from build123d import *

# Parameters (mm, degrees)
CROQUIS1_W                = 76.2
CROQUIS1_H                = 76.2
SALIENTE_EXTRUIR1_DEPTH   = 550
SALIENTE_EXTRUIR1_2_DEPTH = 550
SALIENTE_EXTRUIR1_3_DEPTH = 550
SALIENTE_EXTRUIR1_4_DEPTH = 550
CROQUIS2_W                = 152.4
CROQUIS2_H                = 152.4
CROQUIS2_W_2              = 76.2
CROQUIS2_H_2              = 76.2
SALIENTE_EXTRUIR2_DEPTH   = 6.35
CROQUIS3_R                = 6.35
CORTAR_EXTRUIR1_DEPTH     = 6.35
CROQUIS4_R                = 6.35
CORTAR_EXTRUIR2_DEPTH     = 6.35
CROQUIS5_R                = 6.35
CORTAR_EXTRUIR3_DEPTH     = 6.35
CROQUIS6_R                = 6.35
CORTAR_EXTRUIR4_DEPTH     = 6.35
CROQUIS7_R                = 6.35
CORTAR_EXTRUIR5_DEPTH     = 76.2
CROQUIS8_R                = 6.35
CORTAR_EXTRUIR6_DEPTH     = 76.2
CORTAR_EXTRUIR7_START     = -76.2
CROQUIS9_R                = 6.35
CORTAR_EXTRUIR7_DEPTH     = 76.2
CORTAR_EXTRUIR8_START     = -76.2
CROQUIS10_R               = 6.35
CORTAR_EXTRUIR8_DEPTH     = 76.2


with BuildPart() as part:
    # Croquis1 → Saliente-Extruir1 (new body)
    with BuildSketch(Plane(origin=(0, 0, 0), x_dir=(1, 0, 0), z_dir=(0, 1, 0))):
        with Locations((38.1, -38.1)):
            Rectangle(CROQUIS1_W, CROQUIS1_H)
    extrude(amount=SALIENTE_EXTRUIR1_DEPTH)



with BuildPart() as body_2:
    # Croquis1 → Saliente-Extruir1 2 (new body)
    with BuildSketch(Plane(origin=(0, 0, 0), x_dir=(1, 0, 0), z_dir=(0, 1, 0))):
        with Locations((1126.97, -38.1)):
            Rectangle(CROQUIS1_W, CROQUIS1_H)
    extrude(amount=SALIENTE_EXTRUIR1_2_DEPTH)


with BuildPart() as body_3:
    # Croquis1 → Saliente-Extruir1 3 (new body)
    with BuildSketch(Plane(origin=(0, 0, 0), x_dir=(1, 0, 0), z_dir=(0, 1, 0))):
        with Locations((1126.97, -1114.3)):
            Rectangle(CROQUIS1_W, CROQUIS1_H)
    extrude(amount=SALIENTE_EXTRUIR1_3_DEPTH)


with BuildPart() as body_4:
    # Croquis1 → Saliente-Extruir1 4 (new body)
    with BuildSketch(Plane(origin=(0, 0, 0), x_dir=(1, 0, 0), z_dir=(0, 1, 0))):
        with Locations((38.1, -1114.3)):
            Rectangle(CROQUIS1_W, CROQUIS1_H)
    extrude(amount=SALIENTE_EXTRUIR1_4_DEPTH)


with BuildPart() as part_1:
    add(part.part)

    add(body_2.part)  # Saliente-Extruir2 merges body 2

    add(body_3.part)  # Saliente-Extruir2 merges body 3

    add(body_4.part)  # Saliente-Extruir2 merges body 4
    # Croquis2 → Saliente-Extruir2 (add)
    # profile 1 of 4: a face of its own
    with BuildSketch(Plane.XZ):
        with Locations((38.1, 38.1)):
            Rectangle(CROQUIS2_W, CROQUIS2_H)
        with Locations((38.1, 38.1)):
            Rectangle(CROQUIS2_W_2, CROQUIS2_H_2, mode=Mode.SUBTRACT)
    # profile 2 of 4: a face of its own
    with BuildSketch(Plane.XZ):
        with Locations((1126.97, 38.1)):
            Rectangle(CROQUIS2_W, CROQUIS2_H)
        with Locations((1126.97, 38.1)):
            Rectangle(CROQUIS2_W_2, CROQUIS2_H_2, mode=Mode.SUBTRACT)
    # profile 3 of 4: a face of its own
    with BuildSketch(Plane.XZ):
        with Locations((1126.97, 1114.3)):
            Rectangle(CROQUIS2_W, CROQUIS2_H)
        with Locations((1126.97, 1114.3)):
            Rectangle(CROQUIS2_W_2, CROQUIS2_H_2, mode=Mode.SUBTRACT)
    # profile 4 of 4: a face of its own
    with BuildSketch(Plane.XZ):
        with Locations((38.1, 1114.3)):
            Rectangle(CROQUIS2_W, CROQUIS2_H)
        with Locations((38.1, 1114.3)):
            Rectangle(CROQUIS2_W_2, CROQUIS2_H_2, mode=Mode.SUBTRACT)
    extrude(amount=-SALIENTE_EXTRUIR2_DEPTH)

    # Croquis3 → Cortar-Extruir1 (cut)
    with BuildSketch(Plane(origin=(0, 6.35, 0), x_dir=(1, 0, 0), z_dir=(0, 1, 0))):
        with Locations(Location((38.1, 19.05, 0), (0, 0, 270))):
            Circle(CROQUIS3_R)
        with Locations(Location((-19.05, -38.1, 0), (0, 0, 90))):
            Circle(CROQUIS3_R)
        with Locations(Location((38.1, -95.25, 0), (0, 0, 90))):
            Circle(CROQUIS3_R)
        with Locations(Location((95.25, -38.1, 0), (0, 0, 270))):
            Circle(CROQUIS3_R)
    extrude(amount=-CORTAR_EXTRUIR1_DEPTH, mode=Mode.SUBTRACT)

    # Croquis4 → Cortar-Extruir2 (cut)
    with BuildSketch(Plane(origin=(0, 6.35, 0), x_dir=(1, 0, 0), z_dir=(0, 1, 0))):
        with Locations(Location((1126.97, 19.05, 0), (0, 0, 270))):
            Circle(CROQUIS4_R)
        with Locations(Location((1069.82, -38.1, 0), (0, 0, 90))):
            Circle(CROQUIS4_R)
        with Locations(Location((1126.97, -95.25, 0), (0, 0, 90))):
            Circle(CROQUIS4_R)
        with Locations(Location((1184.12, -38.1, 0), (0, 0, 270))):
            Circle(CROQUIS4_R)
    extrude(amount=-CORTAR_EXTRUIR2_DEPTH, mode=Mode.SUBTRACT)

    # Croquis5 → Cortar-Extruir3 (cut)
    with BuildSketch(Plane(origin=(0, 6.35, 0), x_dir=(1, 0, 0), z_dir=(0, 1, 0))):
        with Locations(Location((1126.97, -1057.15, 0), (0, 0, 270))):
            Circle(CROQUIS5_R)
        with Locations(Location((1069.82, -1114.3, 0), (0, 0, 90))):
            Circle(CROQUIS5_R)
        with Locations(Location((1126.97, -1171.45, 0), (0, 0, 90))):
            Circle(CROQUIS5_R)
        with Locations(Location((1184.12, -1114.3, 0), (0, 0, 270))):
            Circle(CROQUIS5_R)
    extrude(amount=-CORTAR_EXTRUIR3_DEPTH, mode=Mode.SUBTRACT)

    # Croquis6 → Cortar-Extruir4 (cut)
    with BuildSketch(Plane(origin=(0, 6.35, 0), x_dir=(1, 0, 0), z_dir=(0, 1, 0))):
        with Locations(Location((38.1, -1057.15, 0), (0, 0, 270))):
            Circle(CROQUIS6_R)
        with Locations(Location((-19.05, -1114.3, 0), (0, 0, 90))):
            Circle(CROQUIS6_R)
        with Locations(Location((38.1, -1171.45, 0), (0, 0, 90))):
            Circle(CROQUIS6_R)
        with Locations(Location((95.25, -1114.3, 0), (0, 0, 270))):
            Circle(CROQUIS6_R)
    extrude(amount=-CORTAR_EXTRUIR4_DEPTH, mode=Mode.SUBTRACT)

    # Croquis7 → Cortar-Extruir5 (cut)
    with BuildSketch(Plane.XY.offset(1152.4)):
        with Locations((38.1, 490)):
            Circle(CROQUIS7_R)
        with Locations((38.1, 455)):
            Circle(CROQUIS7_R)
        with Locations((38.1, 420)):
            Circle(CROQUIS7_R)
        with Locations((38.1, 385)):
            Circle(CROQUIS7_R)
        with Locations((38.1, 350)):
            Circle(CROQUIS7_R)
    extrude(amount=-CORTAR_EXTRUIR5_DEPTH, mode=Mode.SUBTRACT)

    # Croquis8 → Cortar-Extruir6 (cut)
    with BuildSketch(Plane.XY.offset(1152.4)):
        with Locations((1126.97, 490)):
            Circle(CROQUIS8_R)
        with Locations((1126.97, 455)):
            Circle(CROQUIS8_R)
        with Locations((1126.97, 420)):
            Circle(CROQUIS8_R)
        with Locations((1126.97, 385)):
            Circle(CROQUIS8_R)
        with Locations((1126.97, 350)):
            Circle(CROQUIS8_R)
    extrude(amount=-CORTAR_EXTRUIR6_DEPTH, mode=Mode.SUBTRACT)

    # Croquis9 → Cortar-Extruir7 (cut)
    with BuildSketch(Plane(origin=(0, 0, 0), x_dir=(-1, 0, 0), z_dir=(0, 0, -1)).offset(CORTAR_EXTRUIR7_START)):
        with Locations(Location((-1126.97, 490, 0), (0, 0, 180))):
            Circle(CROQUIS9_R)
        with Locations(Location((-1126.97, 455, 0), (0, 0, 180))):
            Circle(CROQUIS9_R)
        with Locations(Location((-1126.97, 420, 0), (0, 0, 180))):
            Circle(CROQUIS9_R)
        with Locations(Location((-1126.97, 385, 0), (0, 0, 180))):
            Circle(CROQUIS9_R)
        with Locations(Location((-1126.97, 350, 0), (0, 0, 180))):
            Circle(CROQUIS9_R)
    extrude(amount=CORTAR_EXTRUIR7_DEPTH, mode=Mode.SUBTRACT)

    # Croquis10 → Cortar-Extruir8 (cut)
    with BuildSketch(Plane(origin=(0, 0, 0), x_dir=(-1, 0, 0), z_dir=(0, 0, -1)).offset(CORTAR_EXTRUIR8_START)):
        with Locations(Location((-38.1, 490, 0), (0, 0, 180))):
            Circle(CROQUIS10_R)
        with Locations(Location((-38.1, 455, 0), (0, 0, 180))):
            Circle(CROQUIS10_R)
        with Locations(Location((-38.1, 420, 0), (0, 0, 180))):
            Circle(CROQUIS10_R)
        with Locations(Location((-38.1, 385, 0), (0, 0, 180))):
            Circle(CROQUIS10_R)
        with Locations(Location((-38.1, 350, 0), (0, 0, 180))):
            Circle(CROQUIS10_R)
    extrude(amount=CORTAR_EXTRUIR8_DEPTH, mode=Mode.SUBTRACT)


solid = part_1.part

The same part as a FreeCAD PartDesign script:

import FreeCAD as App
import Part
import Sketcher
Q = App.Units.Quantity


def add_polygon(sketch, points):
    """Adds a closed chain of lines whose ends are joined by coincident constraints."""
    first, n = sketch.GeometryCount, len(points)
    for a, b in zip(points, points[1:] + points[:1]):
        sketch.addGeometry(Part.LineSegment(App.Vector(*a, 0), App.Vector(*b, 0)), False)
    for i in range(n):
        sketch.addConstraint(Sketcher.Constraint("Coincident", first + i, 2, first + (i + 1) % n, 1))

doc = App.newDocument("Part")
body = doc.addObject("PartDesign::Body", "Body")

# Sketch on XZ plane
sketch1 = body.newObject("Sketcher::SketchObject", "Sketch")
sketch1.AttachmentSupport = (doc.getObject("XZ_Plane"), [""])
sketch1.MapMode = "FlatFace"
add_polygon(sketch1, [(0, 0), (0, 76), (76, 76), (76, 0)])  # lines 0-3
sketch1.addConstraint([
    Sketcher.Constraint("Vertical", 0),
    Sketcher.Constraint("Horizontal", 1),
    Sketcher.Constraint("Vertical", 2),
    Sketcher.Constraint("Horizontal", 3),
    Sketcher.Constraint("Coincident", 3, 2, -1, 1),
    Sketcher.Constraint("Equal", 3, 0),
    Sketcher.Constraint("DistanceX", 1, 1, 1, 2, Q("3 in")),
])
pad1 = body.newObject("PartDesign::Pad", "Pad")
pad1.Profile = sketch1
pad1.Length = 550
pad1.Reversed = True
body2 = doc.addObject("PartDesign::Body", "Body001")

# Sketch on XZ plane
sketch2 = body2.newObject("Sketcher::SketchObject", "Sketch001")
sketch2.AttachmentSupport = (doc.getObject("XZ_Plane001"), [""])
sketch2.MapMode = "FlatFace"
add_polygon(sketch2, [(1089, 0), (1089, 76), (1165, 76), (1165, 0)])  # lines 0-3
sketch2.addConstraint([
    Sketcher.Constraint("Vertical", 0),
    Sketcher.Constraint("Horizontal", 1),
    Sketcher.Constraint("Vertical", 2),
    Sketcher.Constraint("Horizontal", 3),
    Sketcher.Constraint("PointOnObject", 2, 2, -1),
    Sketcher.Constraint("Equal", 3, 0),
    Sketcher.Constraint("DistanceX", 1, 1, 1, 2, Q("3 in")),
    Sketcher.Constraint("DistanceX", -1, 1, 0, 2, 1088.87),
])
pad2 = body2.newObject("PartDesign::Pad", "Pad001")
pad2.Profile = sketch2
pad2.Length = 550
pad2.Reversed = True
body3 = doc.addObject("PartDesign::Body", "Body002")

# Sketch on XZ plane
sketch3 = body3.newObject("Sketcher::SketchObject", "Sketch002")
sketch3.AttachmentSupport = (doc.getObject("XZ_Plane002"), [""])
sketch3.MapMode = "FlatFace"
add_polygon(sketch3, [(1089, 1076), (1089, 1152), (1165, 1152), (1165, 1076)])  # lines 0-3
sketch3.addConstraint([
    Sketcher.Constraint("Vertical", 0),
    Sketcher.Constraint("Horizontal", 1),
    Sketcher.Constraint("Vertical", 2),
    Sketcher.Constraint("Horizontal", 3),
    Sketcher.Constraint("Equal", 3, 0),
    Sketcher.Constraint("DistanceX", 1, 1, 1, 2, Q("3 in")),
    Sketcher.Constraint("DistanceX", -1, 1, 0, 2, 1088.87),
    Sketcher.Constraint("DistanceY", -1, 1, 0, 2, 1152.4),
])
pad3 = body3.newObject("PartDesign::Pad", "Pad002")
pad3.Profile = sketch3
pad3.Length = 550
pad3.Reversed = True
body4 = doc.addObject("PartDesign::Body", "Body003")

# Sketch on XZ plane
sketch4 = body4.newObject("Sketcher::SketchObject", "Sketch003")
sketch4.AttachmentSupport = (doc.getObject("XZ_Plane003"), [""])
sketch4.MapMode = "FlatFace"
add_polygon(sketch4, [(0, 1076), (0, 1152), (76, 1152), (76, 1076)])  # lines 0-3
sketch4.addConstraint([
    Sketcher.Constraint("Vertical", 0),
    Sketcher.Constraint("Horizontal", 1),
    Sketcher.Constraint("Vertical", 2),
    Sketcher.Constraint("Horizontal", 3),
    Sketcher.Constraint("PointOnObject", 0, 2, -2),
    Sketcher.Constraint("Equal", 3, 0),
    Sketcher.Constraint("DistanceX", 1, 1, 1, 2, Q("3 in")),
    Sketcher.Constraint("DistanceY", -1, 1, 0, 2, 1152.4),
])
pad4 = body4.newObject("PartDesign::Pad", "Pad003")
pad4.Profile = sketch4
pad4.Length = 550
pad4.Reversed = True
body.AllowCompound = True
doc.recompute()

boolean = body.newObject("PartDesign::Boolean", "Boolean")
boolean.Type = "Fuse"
boolean.addObjects([body2])
doc.recompute()

boolean2 = body.newObject("PartDesign::Boolean", "Boolean001")
boolean2.Type = "Fuse"
boolean2.addObjects([body3])
doc.recompute()

boolean3 = body.newObject("PartDesign::Boolean", "Boolean002")
boolean3.Type = "Fuse"
boolean3.addObjects([body4])

# Sketch on XZ plane
sketch5 = body.newObject("Sketcher::SketchObject", "Sketch004")
sketch5.AttachmentSupport = (doc.getObject("XZ_Plane"), [""])
sketch5.MapMode = "FlatFace"
add_polygon(sketch5, [(-38, 114), (-38, -38), (114, -38), (114, 114)])  # lines 0-3
add_polygon(sketch5, [(76, 0), (0, 0), (0, 76), (76, 76)])  # lines 4-7
add_polygon(sketch5, [(1051, 114), (1051, -38), (1203, -38), (1203, 114)])  # lines 8-11
add_polygon(sketch5, [(1165, 0), (1089, 0), (1089, 76), (1165, 76)])  # lines 12-15
add_polygon(sketch5, [(1051, 1190), (1051, 1038), (1203, 1038), (1203, 1190)])  # lines 16-19
add_polygon(sketch5, [(1165, 1076), (1089, 1076), (1089, 1152), (1165, 1152)])  # lines 20-23
add_polygon(sketch5, [(-38, 1190), (-38, 1038), (114, 1038), (114, 1190)])  # lines 24-27
add_polygon(sketch5, [(76, 1076), (0, 1076), (0, 1152), (76, 1152)])  # lines 28-31
sketch5.addConstraint([
    Sketcher.Constraint("Vertical", 0),
    Sketcher.Constraint("Horizontal", 1),
    Sketcher.Constraint("Vertical", 2),
    Sketcher.Constraint("Horizontal", 3),
    Sketcher.Constraint("Horizontal", 4),
    Sketcher.Constraint("Vertical", 5),
    Sketcher.Constraint("Horizontal", 6),
    Sketcher.Constraint("Vertical", 7),
    Sketcher.Constraint("Vertical", 8),
    Sketcher.Constraint("Horizontal", 9),
    Sketcher.Constraint("Vertical", 10),
    Sketcher.Constraint("Horizontal", 11),
    Sketcher.Constraint("Horizontal", 12),
    Sketcher.Constraint("Vertical", 13),
    Sketcher.Constraint("Horizontal", 14),
    Sketcher.Constraint("Vertical", 15),
    Sketcher.Constraint("Vertical", 16),
    Sketcher.Constraint("Horizontal", 17),
    Sketcher.Constraint("Vertical", 18),
    Sketcher.Constraint("Horizontal", 19),
    Sketcher.Constraint("Horizontal", 20),
    Sketcher.Constraint("Vertical", 21),
    Sketcher.Constraint("Horizontal", 22),
    Sketcher.Constraint("Vertical", 23),
    Sketcher.Constraint("Vertical", 24),
    Sketcher.Constraint("Horizontal", 25),
    Sketcher.Constraint("Vertical", 26),
    Sketcher.Constraint("Horizontal", 27),
    Sketcher.Constraint("Horizontal", 28),
    Sketcher.Constraint("Vertical", 29),
    Sketcher.Constraint("Horizontal", 30),
    Sketcher.Constraint("Vertical", 31),
    Sketcher.Constraint("Coincident", 4, 2, -1, 1),
    Sketcher.Constraint("PointOnObject", 12, 2, -1),
    Sketcher.Constraint("PointOnObject", 28, 2, -2),
    Sketcher.Constraint("Horizontal", 1, 2, 8, 2),
    Sketcher.Constraint("Horizontal", 3, 2, 10, 2),
    Sketcher.Constraint("Horizontal", 6, 2, 13, 2),
    Sketcher.Constraint("Horizontal", 17, 2, 24, 2),
    Sketcher.Constraint("Horizontal", 19, 2, 26, 2),
    Sketcher.Constraint("Horizontal", 23, 2, 28, 2),
    Sketcher.Constraint("Horizontal", 22, 2, 29, 2),
    Sketcher.Constraint("Vertical", 11, 2, 16, 2),
    Sketcher.Constraint("Vertical", 10, 2, 17, 2),
    Sketcher.Constraint("Vertical", 13, 2, 20, 2),
    Sketcher.Constraint("Vertical", 15, 2, 22, 2),
    Sketcher.Constraint("Vertical", 3, 2, 24, 2),
    Sketcher.Constraint("Vertical", 2, 2, 25, 2),
    Sketcher.Constraint("Vertical", 7, 2, 30, 2),
    Sketcher.Constraint("Equal", 3, 9),
    Sketcher.Constraint("Equal", 6, 12),
    Sketcher.Constraint("Equal", 27, 0),
    Sketcher.Constraint("Equal", 30, 5),
    Sketcher.Constraint("Equal", 10, 16),
    Sketcher.Constraint("Equal", 15, 21),
    Sketcher.Constraint("DistanceX", 1, 1, 1, 2, Q("6 in")),
    Sketcher.Constraint("DistanceX", 4, 2, 4, 1, Q("3 in")),
    Sketcher.Constraint("DistanceX", 0, 2, -1, 1, Q("1.5 in")),
    Sketcher.Constraint("DistanceY", 0, 2, -1, 1, Q("1.5 in")),
    Sketcher.Constraint("DistanceX", 8, 2, 12, 2, Q("1.5 in")),
    Sketcher.Constraint("DistanceY", 16, 2, 20, 2, Q("1.5 in")),
    Sketcher.Constraint("DistanceX", -1, 1, 8, 2, 1050.77),
    Sketcher.Constraint("DistanceY", -1, 1, 16, 2, 1038.1),
])
pad5 = body.newObject("PartDesign::Pad", "Pad004")
pad5.Profile = sketch5
pad5.Length = Q("0.25 in")
pad5.Reversed = True

# Sketch on XZ plane
sketch6 = body.newObject("Sketcher::SketchObject", "Sketch005")
sketch6.AttachmentSupport = (doc.getObject("XZ_Plane"), [""])
sketch6.MapMode = "FlatFace"
sketch6.AttachmentOffset = App.Placement(App.Vector(0, 0, -0.25 * 25.4), App.Rotation())
sketch6.addGeometry([
    Part.Circle(App.Vector(38, -19, 0), App.Vector(0, 0, 1), 6),
    Part.Circle(App.Vector(-19, 38, 0), App.Vector(0, 0, 1), 6),
    Part.Circle(App.Vector(38, 95, 0), App.Vector(0, 0, 1), 6),
    Part.Circle(App.Vector(95, 38, 0), App.Vector(0, 0, 1), 6),
], False)
sketch6.addConstraint([
    Sketcher.Constraint("Equal", 0, 1),
    Sketcher.Constraint("Equal", 1, 2),
    Sketcher.Constraint("Equal", 2, 3),
    Sketcher.Constraint("Horizontal", 1, 3, 3, 3),
    Sketcher.Constraint("Vertical", 0, 3, 2, 3),
    Sketcher.Constraint("Diameter", 0, Q("0.5 in")),
    Sketcher.Constraint("DistanceX", -1, 1, 0, 3, Q("1.5 in")),
    Sketcher.Constraint("DistanceY", -1, 1, 1, 3, Q("1.5 in")),
    Sketcher.Constraint("DistanceY", 0, 3, 2, 3, Q("4.5 in")),
    Sketcher.Constraint("DistanceX", 1, 3, 3, 3, Q("4.5 in")),
    Sketcher.Constraint("DistanceY", 0, 3, -1, 1, Q("0.75 in")),
    Sketcher.Constraint("DistanceX", 1, 3, -1, 1, Q("0.75 in")),
])
pocket1 = body.newObject("PartDesign::Pocket", "Pocket")
pocket1.Profile = sketch6
pocket1.Length = Q("0.25 in")
pocket1.Reversed = True

# Sketch on XZ plane
sketch7 = body.newObject("Sketcher::SketchObject", "Sketch006")
sketch7.AttachmentSupport = (doc.getObject("XZ_Plane"), [""])
sketch7.MapMode = "FlatFace"
sketch7.AttachmentOffset = App.Placement(App.Vector(0, 0, -0.25 * 25.4), App.Rotation())
sketch7.addGeometry([
    Part.Circle(App.Vector(1127, -19, 0), App.Vector(0, 0, 1), 6),
    Part.Circle(App.Vector(1070, 38, 0), App.Vector(0, 0, 1), 6),
    Part.Circle(App.Vector(1127, 95, 0), App.Vector(0, 0, 1), 6),
    Part.Circle(App.Vector(1184, 38, 0), App.Vector(0, 0, 1), 6),
], False)
sketch7.addConstraint([
    Sketcher.Constraint("Equal", 0, 1),
    Sketcher.Constraint("Equal", 1, 2),
    Sketcher.Constraint("Equal", 2, 3),
    Sketcher.Constraint("Horizontal", 1, 3, 3, 3),
    Sketcher.Constraint("Vertical", 0, 3, 2, 3),
    Sketcher.Constraint("Diameter", 0, Q("0.5 in")),
    Sketcher.Constraint("DistanceY", -1, 1, 1, 3, Q("1.5 in")),
    Sketcher.Constraint("DistanceY", 0, 3, 2, 3, Q("4.5 in")),
    Sketcher.Constraint("DistanceX", 1, 3, 3, 3, Q("4.5 in")),
    Sketcher.Constraint("DistanceY", 0, 3, -1, 1, Q("0.75 in")),
    Sketcher.Constraint("DistanceX", 1, 3, 0, 3, Q("2.25 in")),
    Sketcher.Constraint("DistanceX", -1, 1, 0, 3, 1126.97),
])
pocket2 = body.newObject("PartDesign::Pocket", "Pocket001")
pocket2.Profile = sketch7
pocket2.Length = Q("0.25 in")
pocket2.Reversed = True

# Sketch on XZ plane
sketch8 = body.newObject("Sketcher::SketchObject", "Sketch007")
sketch8.AttachmentSupport = (doc.getObject("XZ_Plane"), [""])
sketch8.MapMode = "FlatFace"
sketch8.AttachmentOffset = App.Placement(App.Vector(0, 0, -0.25 * 25.4), App.Rotation())
sketch8.addGeometry([
    Part.Circle(App.Vector(1127, 1057, 0), App.Vector(0, 0, 1), 6),
    Part.Circle(App.Vector(1070, 1114, 0), App.Vector(0, 0, 1), 6),
    Part.Circle(App.Vector(1127, 1171, 0), App.Vector(0, 0, 1), 6),
    Part.Circle(App.Vector(1184, 1114, 0), App.Vector(0, 0, 1), 6),
], False)
sketch8.addConstraint([
    Sketcher.Constraint("Equal", 0, 1),
    Sketcher.Constraint("Equal", 1, 2),
    Sketcher.Constraint("Equal", 2, 3),
    Sketcher.Constraint("Horizontal", 1, 3, 3, 3),
    Sketcher.Constraint("Vertical", 0, 3, 2, 3),
    Sketcher.Constraint("Diameter", 0, Q("0.5 in")),
    Sketcher.Constraint("DistanceY", 0, 3, 2, 3, Q("4.5 in")),
    Sketcher.Constraint("DistanceX", 1, 3, 3, 3, Q("4.5 in")),
    Sketcher.Constraint("DistanceX", 1, 3, 0, 3, Q("2.25 in")),
    Sketcher.Constraint("DistanceY", 0, 3, 1, 3, Q("2.25 in")),
    Sketcher.Constraint("DistanceX", -1, 1, 0, 3, 1126.97),
    Sketcher.Constraint("DistanceY", -1, 1, 0, 3, 1057.15),
])
pocket3 = body.newObject("PartDesign::Pocket", "Pocket002")
pocket3.Profile = sketch8
pocket3.Length = Q("0.25 in")
pocket3.Reversed = True

# Sketch on XZ plane
sketch9 = body.newObject("Sketcher::SketchObject", "Sketch008")
sketch9.AttachmentSupport = (doc.getObject("XZ_Plane"), [""])
sketch9.MapMode = "FlatFace"
sketch9.AttachmentOffset = App.Placement(App.Vector(0, 0, -0.25 * 25.4), App.Rotation())
sketch9.addGeometry([
    Part.Circle(App.Vector(38, 1057, 0), App.Vector(0, 0, 1), 6),
    Part.Circle(App.Vector(-19, 1114, 0), App.Vector(0, 0, 1), 6),
    Part.Circle(App.Vector(38, 1171, 0), App.Vector(0, 0, 1), 6),
    Part.Circle(App.Vector(95, 1114, 0), App.Vector(0, 0, 1), 6),
], False)
sketch9.addConstraint([
    Sketcher.Constraint("Equal", 0, 1),
    Sketcher.Constraint("Equal", 1, 2),
    Sketcher.Constraint("Equal", 2, 3),
    Sketcher.Constraint("Horizontal", 1, 3, 3, 3),
    Sketcher.Constraint("Vertical", 0, 3, 2, 3),
    Sketcher.Constraint("Diameter", 0, Q("0.5 in")),
    Sketcher.Constraint("DistanceX", -1, 1, 0, 3, Q("1.5 in")),
    Sketcher.Constraint("DistanceY", 0, 3, 2, 3, Q("4.5 in")),
    Sketcher.Constraint("DistanceX", 1, 3, 3, 3, Q("4.5 in")),
    Sketcher.Constraint("DistanceX", 1, 3, -1, 1, Q("0.75 in")),
    Sketcher.Constraint("DistanceY", 0, 3, 1, 3, Q("2.25 in")),
    Sketcher.Constraint("DistanceY", -1, 1, 0, 3, 1057.15),
])
pocket4 = body.newObject("PartDesign::Pocket", "Pocket003")
pocket4.Profile = sketch9
pocket4.Length = Q("0.25 in")
pocket4.Reversed = True

# Sketch on XY plane
sketch10 = body.newObject("Sketcher::SketchObject", "Sketch009")
sketch10.AttachmentSupport = (doc.getObject("XY_Plane"), [""])
sketch10.MapMode = "FlatFace"
sketch10.AttachmentOffset = App.Placement(App.Vector(0, 0, 1152.4), App.Rotation())
sketch10.addGeometry([
    Part.Circle(App.Vector(38, 490, 0), App.Vector(0, 0, 1), 6),  # 0
    Part.Circle(App.Vector(38, 455, 0), App.Vector(0, 0, 1), 6),  # 1
    Part.Circle(App.Vector(38, 420, 0), App.Vector(0, 0, 1), 6),  # 2
    Part.Circle(App.Vector(38, 385, 0), App.Vector(0, 0, 1), 6),  # 3
    Part.Circle(App.Vector(38, 350, 0), App.Vector(0, 0, 1), 6),  # 4
], False)
sketch10.addConstraint([
    Sketcher.Constraint("Equal", 0, 1),
    Sketcher.Constraint("Equal", 1, 2),
    Sketcher.Constraint("Equal", 2, 3),
    Sketcher.Constraint("Equal", 3, 4),
    Sketcher.Constraint("Vertical", 0, 3, 1, 3),
    Sketcher.Constraint("Vertical", 1, 3, 2, 3),
    Sketcher.Constraint("Vertical", 2, 3, 3, 3),
    Sketcher.Constraint("Vertical", 3, 3, 4, 3),
    Sketcher.Constraint("Diameter", 0, Q("0.5 in")),
    Sketcher.Constraint("DistanceX", -1, 1, 0, 3, Q("1.5 in")),
    Sketcher.Constraint("DistanceY", -1, 1, 0, 3, 490.0),
    Sketcher.Constraint("DistanceY", -1, 1, 1, 3, 455.0),
    Sketcher.Constraint("DistanceY", -1, 1, 2, 3, 420.0),
    Sketcher.Constraint("DistanceY", -1, 1, 3, 3, 385.0),
    Sketcher.Constraint("DistanceY", -1, 1, 4, 3, 350.0),
])
pocket5 = body.newObject("PartDesign::Pocket", "Pocket004")
pocket5.Profile = sketch10
pocket5.Length = Q("3 in")

# Sketch on XY plane
sketch11 = body.newObject("Sketcher::SketchObject", "Sketch010")
sketch11.AttachmentSupport = (doc.getObject("XY_Plane"), [""])
sketch11.MapMode = "FlatFace"
sketch11.AttachmentOffset = App.Placement(App.Vector(0, 0, 1152.4), App.Rotation())
sketch11.addGeometry([
    Part.Circle(App.Vector(1127, 490, 0), App.Vector(0, 0, 1), 6),  # 0
    Part.Circle(App.Vector(1127, 455, 0), App.Vector(0, 0, 1), 6),  # 1
    Part.Circle(App.Vector(1127, 420, 0), App.Vector(0, 0, 1), 6),  # 2
    Part.Circle(App.Vector(1127, 385, 0), App.Vector(0, 0, 1), 6),  # 3
    Part.Circle(App.Vector(1127, 350, 0), App.Vector(0, 0, 1), 6),  # 4
], False)
sketch11.addConstraint([
    Sketcher.Constraint("Equal", 0, 1),
    Sketcher.Constraint("Equal", 1, 2),
    Sketcher.Constraint("Equal", 2, 3),
    Sketcher.Constraint("Equal", 3, 4),
    Sketcher.Constraint("Vertical", 0, 3, 1, 3),
    Sketcher.Constraint("Vertical", 1, 3, 2, 3),
    Sketcher.Constraint("Vertical", 2, 3, 3, 3),
    Sketcher.Constraint("Vertical", 3, 3, 4, 3),
    Sketcher.Constraint("Diameter", 0, Q("0.5 in")),
    Sketcher.Constraint("DistanceX", -1, 1, 0, 3, 1126.97),
    Sketcher.Constraint("DistanceY", -1, 1, 0, 3, 490.0),
    Sketcher.Constraint("DistanceY", -1, 1, 1, 3, 455.0),
    Sketcher.Constraint("DistanceY", -1, 1, 2, 3, 420.0),
    Sketcher.Constraint("DistanceY", -1, 1, 3, 3, 385.0),
    Sketcher.Constraint("DistanceY", -1, 1, 4, 3, 350.0),
])
pocket6 = body.newObject("PartDesign::Pocket", "Pocket005")
pocket6.Profile = sketch11
pocket6.Length = Q("3 in")

# Sketch on XY plane
sketch12 = body.newObject("Sketcher::SketchObject", "Sketch011")
sketch12.AttachmentSupport = (doc.getObject("XY_Plane"), [""])
sketch12.MapMode = "FlatFace"
sketch12.AttachmentOffset = App.Placement(App.Vector(0, 0, 3 * 25.4), App.Rotation())
sketch12.addGeometry([
    Part.Circle(App.Vector(1127, 490, 0), App.Vector(0, 0, 1), 6),  # 0
    Part.Circle(App.Vector(1127, 455, 0), App.Vector(0, 0, 1), 6),  # 1
    Part.Circle(App.Vector(1127, 420, 0), App.Vector(0, 0, 1), 6),  # 2
    Part.Circle(App.Vector(1127, 385, 0), App.Vector(0, 0, 1), 6),  # 3
    Part.Circle(App.Vector(1127, 350, 0), App.Vector(0, 0, 1), 6),  # 4
], False)
sketch12.addConstraint([
    Sketcher.Constraint("Equal", 0, 1),
    Sketcher.Constraint("Equal", 1, 2),
    Sketcher.Constraint("Equal", 2, 3),
    Sketcher.Constraint("Equal", 3, 4),
    Sketcher.Constraint("Vertical", 0, 3, 1, 3),
    Sketcher.Constraint("Vertical", 1, 3, 2, 3),
    Sketcher.Constraint("Vertical", 2, 3, 3, 3),
    Sketcher.Constraint("Vertical", 3, 3, 4, 3),
    Sketcher.Constraint("Diameter", 0, Q("0.5 in")),
    Sketcher.Constraint("DistanceX", -1, 1, 0, 3, 1126.97),
    Sketcher.Constraint("DistanceY", -1, 1, 0, 3, 490.0),
    Sketcher.Constraint("DistanceY", -1, 1, 1, 3, 455.0),
    Sketcher.Constraint("DistanceY", -1, 1, 2, 3, 420.0),
    Sketcher.Constraint("DistanceY", -1, 1, 3, 3, 385.0),
    Sketcher.Constraint("DistanceY", -1, 1, 4, 3, 350.0),
])
pocket7 = body.newObject("PartDesign::Pocket", "Pocket006")
pocket7.Profile = sketch12
pocket7.Length = Q("3 in")

# Sketch on XY plane
sketch13 = body.newObject("Sketcher::SketchObject", "Sketch012")
sketch13.AttachmentSupport = (doc.getObject("XY_Plane"), [""])
sketch13.MapMode = "FlatFace"
sketch13.AttachmentOffset = App.Placement(App.Vector(0, 0, 3 * 25.4), App.Rotation())
sketch13.addGeometry([
    Part.Circle(App.Vector(38, 490, 0), App.Vector(0, 0, 1), 6),  # 0
    Part.Circle(App.Vector(38, 455, 0), App.Vector(0, 0, 1), 6),  # 1
    Part.Circle(App.Vector(38, 420, 0), App.Vector(0, 0, 1), 6),  # 2
    Part.Circle(App.Vector(38, 385, 0), App.Vector(0, 0, 1), 6),  # 3
    Part.Circle(App.Vector(38, 350, 0), App.Vector(0, 0, 1), 6),  # 4
], False)
sketch13.addConstraint([
    Sketcher.Constraint("Equal", 0, 1),
    Sketcher.Constraint("Equal", 1, 2),
    Sketcher.Constraint("Equal", 2, 3),
    Sketcher.Constraint("Equal", 3, 4),
    Sketcher.Constraint("Vertical", 0, 3, 1, 3),
    Sketcher.Constraint("Vertical", 1, 3, 2, 3),
    Sketcher.Constraint("Vertical", 2, 3, 3, 3),
    Sketcher.Constraint("Vertical", 3, 3, 4, 3),
    Sketcher.Constraint("Diameter", 0, Q("0.5 in")),
    Sketcher.Constraint("DistanceX", -1, 1, 0, 3, Q("1.5 in")),
    Sketcher.Constraint("DistanceY", -1, 1, 0, 3, 490.0),
    Sketcher.Constraint("DistanceY", -1, 1, 1, 3, 455.0),
    Sketcher.Constraint("DistanceY", -1, 1, 2, 3, 420.0),
    Sketcher.Constraint("DistanceY", -1, 1, 3, 3, 385.0),
    Sketcher.Constraint("DistanceY", -1, 1, 4, 3, 350.0),
])
pocket8 = body.newObject("PartDesign::Pocket", "Pocket007")
pocket8.Profile = sketch13
pocket8.Length = Q("3 in")

doc.recompute()
